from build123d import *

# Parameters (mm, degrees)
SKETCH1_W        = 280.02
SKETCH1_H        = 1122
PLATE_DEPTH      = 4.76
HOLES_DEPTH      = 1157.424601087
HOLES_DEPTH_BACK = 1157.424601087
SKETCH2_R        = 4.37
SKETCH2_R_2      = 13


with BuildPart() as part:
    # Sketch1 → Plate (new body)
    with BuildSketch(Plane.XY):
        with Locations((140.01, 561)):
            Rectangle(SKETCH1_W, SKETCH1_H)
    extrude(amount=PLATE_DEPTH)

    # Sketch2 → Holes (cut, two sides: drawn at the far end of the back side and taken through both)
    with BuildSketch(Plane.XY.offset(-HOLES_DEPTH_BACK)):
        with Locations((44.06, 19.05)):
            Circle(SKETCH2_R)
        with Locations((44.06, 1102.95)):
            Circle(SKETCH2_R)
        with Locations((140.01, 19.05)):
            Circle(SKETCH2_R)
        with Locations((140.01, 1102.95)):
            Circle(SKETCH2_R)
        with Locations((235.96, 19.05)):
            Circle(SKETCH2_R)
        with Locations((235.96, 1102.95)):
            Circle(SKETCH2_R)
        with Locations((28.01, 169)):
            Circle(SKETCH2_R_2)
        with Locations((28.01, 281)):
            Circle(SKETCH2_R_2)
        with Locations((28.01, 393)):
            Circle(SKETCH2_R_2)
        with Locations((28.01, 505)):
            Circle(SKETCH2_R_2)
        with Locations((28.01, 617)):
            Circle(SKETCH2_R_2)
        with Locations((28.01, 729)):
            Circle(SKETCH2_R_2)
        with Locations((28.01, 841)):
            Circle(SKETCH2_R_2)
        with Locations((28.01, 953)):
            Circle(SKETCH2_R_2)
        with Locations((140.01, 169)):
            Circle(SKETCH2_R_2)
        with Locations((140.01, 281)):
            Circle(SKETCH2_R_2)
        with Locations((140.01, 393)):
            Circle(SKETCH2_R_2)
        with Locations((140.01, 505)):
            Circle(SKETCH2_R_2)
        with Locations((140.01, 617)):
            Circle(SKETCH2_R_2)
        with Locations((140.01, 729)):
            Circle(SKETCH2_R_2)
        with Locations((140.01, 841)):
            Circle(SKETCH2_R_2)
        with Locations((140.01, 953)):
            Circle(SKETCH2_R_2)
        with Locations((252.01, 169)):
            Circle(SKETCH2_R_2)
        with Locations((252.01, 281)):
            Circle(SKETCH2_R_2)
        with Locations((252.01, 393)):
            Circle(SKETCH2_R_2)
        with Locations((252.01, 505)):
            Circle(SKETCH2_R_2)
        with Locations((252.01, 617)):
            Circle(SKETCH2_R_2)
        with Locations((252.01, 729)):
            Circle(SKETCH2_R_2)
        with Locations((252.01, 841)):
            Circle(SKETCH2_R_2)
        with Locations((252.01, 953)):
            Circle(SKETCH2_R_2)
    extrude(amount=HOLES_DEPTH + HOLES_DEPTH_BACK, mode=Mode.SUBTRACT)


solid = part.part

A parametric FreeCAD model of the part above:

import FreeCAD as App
import Part
import Sketcher

V = App.Vector
Q = App.Units.Quantity


def add_polygon(sketch, points):
    """Adds a closed chain of lines whose ends are joined by coincident constraints."""
    first, n = sketch.GeometryCount, len(points)
    for a, b in zip(points, points[1:] + points[:1]):
        sketch.addGeometry(Part.LineSegment(App.Vector(*a, 0), App.Vector(*b, 0)), False)
    for i in range(n):
        sketch.addConstraint(Sketcher.Constraint("Coincident", first + i, 2, first + (i + 1) % n, 1))

doc = App.newDocument("Part")
body = doc.addObject("PartDesign::Body", "Body")

# Sketch on XY plane
sketch1 = body.newObject("Sketcher::SketchObject", "Sketch")
sketch1.AttachmentSupport = (doc.getObject("XY_Plane"), [""])
sketch1.MapMode = "FlatFace"
add_polygon(sketch1, [(0, 1122), (0, 0), (280, 0), (280, 1122)])  # lines 0-3
sketch1.addConstraint(Sketcher.Constraint("Vertical", 0))
sketch1.addConstraint(Sketcher.Constraint("Horizontal", 1))
sketch1.addConstraint(Sketcher.Constraint("Vertical", 2))
sketch1.addConstraint(Sketcher.Constraint("Horizontal", 3))
sketch1.addConstraint(Sketcher.Constraint("Coincident", 0, 2, -1, 1))
sketch1.addConstraint(Sketcher.Constraint("DistanceY", 0, 2, 0, 1, Q("1122 mm")))
sketch1.addConstraint(Sketcher.Constraint("DistanceX", 1, 1, 1, 2, Q("280.02 mm")))
pad1 = body.newObject("PartDesign::Pad", "Pad")
pad1.Profile = sketch1
pad1.Length = 4.76

# Sketch on XY plane
sketch2 = body.newObject("Sketcher::SketchObject", "Sketch001")
sketch2.AttachmentSupport = (doc.getObject("XY_Plane"), [""])
sketch2.MapMode = "FlatFace"
sketch2.addGeometry(Part.Circle(V(44.1, 19.1, 0), V(0, 0, 1), 4.4), False)
sketch2.addGeometry(Part.Circle(V(44.1, 1103, 0), V(0, 0, 1), 4.4), False)
sketch2.addGeometry(Part.Circle(V(140, 19.1, 0), V(0, 0, 1), 4.4), False)
sketch2.addGeometry(Part.Circle(V(140, 1103, 0), V(0, 0, 1), 4.4), False)
sketch2.addGeometry(Part.Circle(V(236, 19.1, 0), V(0, 0, 1), 4.4), False)
sketch2.addGeometry(Part.Circle(V(236, 1103, 0), V(0, 0, 1), 4.4), False)
sketch2.addGeometry(Part.Circle(V(28, 169, 0), V(0, 0, 1), 13), False)
sketch2.addGeometry(Part.Circle(V(28, 281, 0), V(0, 0, 1), 13), False)
sketch2.addGeometry(Part.Circle(V(28, 393, 0), V(0, 0, 1), 13), False)
sketch2.addGeometry(Part.Circle(V(28, 505, 0), V(0, 0, 1), 13), False)
sketch2.addGeometry(Part.Circle(V(28, 617, 0), V(0, 0, 1), 13), False)
sketch2.addGeometry(Part.Circle(V(28, 729, 0), V(0, 0, 1), 13), False)
sketch2.addGeometry(Part.Circle(V(28, 841, 0), V(0, 0, 1), 13), False)
sketch2.addGeometry(Part.Circle(V(28, 953, 0), V(0, 0, 1), 13), False)
sketch2.addGeometry(Part.Circle(V(140, 169, 0), V(0, 0, 1), 13), False)
sketch2.addGeometry(Part.Circle(V(140, 281, 0), V(0, 0, 1), 13), False)
sketch2.addGeometry(Part.Circle(V(140, 393, 0), V(0, 0, 1), 13), False)
sketch2.addGeometry(Part.Circle(V(140, 505, 0), V(0, 0, 1), 13), False)
sketch2.addGeometry(Part.Circle(V(140, 617, 0), V(0, 0, 1), 13), False)
sketch2.addGeometry(Part.Circle(V(140, 729, 0), V(0, 0, 1), 13), False)
sketch2.addGeometry(Part.Circle(V(140, 841, 0), V(0, 0, 1), 13), False)
sketch2.addGeometry(Part.Circle(V(140, 953, 0), V(0, 0, 1), 13), False)
sketch2.addGeometry(Part.Circle(V(252, 169, 0), V(0, 0, 1), 13), False)
sketch2.addGeometry(Part.Circle(V(252, 281, 0), V(0, 0, 1), 13), False)
sketch2.addGeometry(Part.Circle(V(252, 393, 0), V(0, 0, 1), 13), False)
sketch2.addGeometry(Part.Circle(V(252, 505, 0), V(0, 0, 1), 13), False)
sketch2.addGeometry(Part.Circle(V(252, 617, 0), V(0, 0, 1), 13), False)
sketch2.addGeometry(Part.Circle(V(252, 729, 0), V(0, 0, 1), 13), False)
sketch2.addGeometry(Part.Circle(V(252, 841, 0), V(0, 0, 1), 13), False)
sketch2.addGeometry(Part.Circle(V(252, 953, 0), V(0, 0, 1), 13), False)
sketch2.addConstraint(Sketcher.Constraint("Equal", 0, 1))
sketch2.addConstraint(Sketcher.Constraint("Equal", 1, 2))
sketch2.addConstraint(Sketcher.Constraint("Equal", 2, 3))
sketch2.addConstraint(Sketcher.Constraint("Equal", 3, 4))
sketch2.addConstraint(Sketcher.Constraint("Equal", 4, 5))
sketch2.addConstraint(Sketcher.Constraint("Equal", 6, 7))
sketch2.addConstraint(Sketcher.Constraint("Equal", 7, 8))
sketch2.addConstraint(Sketcher.Constraint("Equal", 8, 9))
sketch2.addConstraint(Sketcher.Constraint("Equal", 9, 10))
sketch2.addConstraint(Sketcher.Constraint("Equal", 10, 11))
sketch2.addConstraint(Sketcher.Constraint("Equal", 11, 12))
sketch2.addConstraint(Sketcher.Constraint("Equal", 12, 13))
sketch2.addConstraint(Sketcher.Constraint("Equal", 13, 14))
sketch2.addConstraint(Sketcher.Constraint("Equal", 14, 15))
sketch2.addConstraint(Sketcher.Constraint("Equal", 15, 16))
sketch2.addConstraint(Sketcher.Constraint("Equal", 16, 17))
sketch2.addConstraint(Sketcher.Constraint("Equal", 17, 18))
sketch2.addConstraint(Sketcher.Constraint("Equal", 18, 19))
sketch2.addConstraint(Sketcher.Constraint("Equal", 19, 20))
sketch2.addConstraint(Sketcher.Constraint("Equal", 20, 21))
sketch2.addConstraint(Sketcher.Constraint("Equal", 21, 22))
sketch2.addConstraint(Sketcher.Constraint("Equal", 22, 23))
sketch2.addConstraint(Sketcher.Constraint("Equal", 23, 24))
sketch2.addConstraint(Sketcher.Constraint("Equal", 24, 25))
sketch2.addConstraint(Sketcher.Constraint("Equal", 25, 26))
sketch2.addConstraint(Sketcher.Constraint("Equal", 26, 27))
sketch2.addConstraint(Sketcher.Constraint("Equal", 27, 28))
sketch2.addConstraint(Sketcher.Constraint("Equal", 28, 29))
sketch2.addConstraint(Sketcher.Constraint("Horizontal", 0, 3, 2, 3))
sketch2.addConstraint(Sketcher.Constraint("Horizontal", 1, 3, 3, 3))
sketch2.addConstraint(Sketcher.Constraint("Horizontal", 2, 3, 4, 3))
sketch2.addConstraint(Sketcher.Constraint("Horizontal", 3, 3, 5, 3))
sketch2.addConstraint(Sketcher.Constraint("Horizontal", 6, 3, 14, 3))
sketch2.addConstraint(Sketcher.Constraint("Horizontal", 7, 3, 15, 3))
sketch2.addConstraint(Sketcher.Constraint("Horizontal", 8, 3, 16, 3))
sketch2.addConstraint(Sketcher.Constraint("Horizontal", 9, 3, 17, 3))
sketch2.addConstraint(Sketcher.Constraint("Horizontal", 10, 3, 18, 3))
sketch2.addConstraint(Sketcher.Constraint("Horizontal", 11, 3, 19, 3))
sketch2.addConstraint(Sketcher.Constraint("Horizontal", 12, 3, 20, 3))
sketch2.addConstraint(Sketcher.Constraint("Horizontal", 13, 3, 21, 3))
sketch2.addConstraint(Sketcher.Constraint("Horizontal", 14, 3, 22, 3))
sketch2.addConstraint(Sketcher.Constraint("Horizontal", 15, 3, 23, 3))
sketch2.addConstraint(Sketcher.Constraint("Horizontal", 16, 3, 24, 3))
sketch2.addConstraint(Sketcher.Constraint("Horizontal", 17, 3, 25, 3))
sketch2.addConstraint(Sketcher.Constraint("Horizontal", 18, 3, 26, 3))
sketch2.addConstraint(Sketcher.Constraint("Horizontal", 19, 3, 27, 3))
sketch2.addConstraint(Sketcher.Constraint("Horizontal", 20, 3, 28, 3))
sketch2.addConstraint(Sketcher.Constraint("Horizontal", 21, 3, 29, 3))
sketch2.addConstraint(Sketcher.Constraint("Vertical", 0, 3, 1, 3))
sketch2.addConstraint(Sketcher.Constraint("Vertical", 2, 3, 3, 3))
sketch2.addConstraint(Sketcher.Constraint("Vertical", 4, 3, 5, 3))
sketch2.addConstraint(Sketcher.Constraint("Vertical", 6, 3, 7, 3))
sketch2.addConstraint(Sketcher.Constraint("Vertical", 7, 3, 8, 3))
sketch2.addConstraint(Sketcher.Constraint("Vertical", 8, 3, 9, 3))
sketch2.addConstraint(Sketcher.Constraint("Vertical", 9, 3, 10, 3))
sketch2.addConstraint(Sketcher.Constraint("Vertical", 10, 3, 11, 3))
sketch2.addConstraint(Sketcher.Constraint("Vertical", 11, 3, 12, 3))
sketch2.addConstraint(Sketcher.Constraint("Vertical", 12, 3, 13, 3))
sketch2.addConstraint(Sketcher.Constraint("Vertical", 3, 3, 14, 3))
sketch2.addConstraint(Sketcher.Constraint("Vertical", 14, 3, 15, 3))
sketch2.addConstraint(Sketcher.Constraint("Vertical", 15, 3, 16, 3))
sketch2.addConstraint(Sketcher.Constraint("Vertical", 16, 3, 17, 3))
sketch2.addConstraint(Sketcher.Constraint("Vertical", 17, 3, 18, 3))
sketch2.addConstraint(Sketcher.Constraint("Vertical", 18, 3, 19, 3))
sketch2.addConstraint(Sketcher.Constraint("Vertical", 19, 3, 20, 3))
sketch2.addConstraint(Sketcher.Constraint("Vertical", 20, 3, 21, 3))
sketch2.addConstraint(Sketcher.Constraint("Vertical", 22, 3, 23, 3))
sketch2.addConstraint(Sketcher.Constraint("Vertical", 23, 3, 24, 3))
sketch2.addConstraint(Sketcher.Constraint("Vertical", 24, 3, 25, 3))
sketch2.addConstraint(Sketcher.Constraint("Vertical", 25, 3, 26, 3))
sketch2.addConstraint(Sketcher.Constraint("Vertical", 26, 3, 27, 3))
sketch2.addConstraint(Sketcher.Constraint("Vertical", 27, 3, 28, 3))
sketch2.addConstraint(Sketcher.Constraint("Vertical", 28, 3, 29, 3))
sketch2.addConstraint(Sketcher.Constraint("Diameter", 6, Q("26 mm")))
sketch2.addConstraint(Sketcher.Constraint("Diameter", 0, Q("8.74 mm")))
sketch2.addConstraint(Sketcher.Constraint("DistanceY", -1, 1, 6, 3, Q("169 mm")))
sketch2.addConstraint(Sketcher.Constraint("DistanceY", -1, 1, 7, 3, Q("281 mm")))
sketch2.addConstraint(Sketcher.Constraint("DistanceY", -1, 1, 8, 3, Q("393 mm")))
sketch2.addConstraint(Sketcher.Constraint("DistanceY", -1, 1, 9, 3, Q("505 mm")))
sketch2.addConstraint(Sketcher.Constraint("DistanceY", -1, 1, 10, 3, Q("617 mm")))
sketch2.addConstraint(Sketcher.Constraint("DistanceY", -1, 1, 11, 3, Q("729 mm")))
sketch2.addConstraint(Sketcher.Constraint("DistanceY", -1, 1, 12, 3, Q("841 mm")))
sketch2.addConstraint(Sketcher.Constraint("DistanceY", -1, 1, 13, 3, Q("953 mm")))
sketch2.addConstraint(Sketcher.Constraint("DistanceX", 6, 3, 2, 3, Q("112 mm")))
sketch2.addConstraint(Sketcher.Constraint("DistanceX", 14, 3, 22, 3, Q("112 mm")))
sketch2.addConstraint(Sketcher.Constraint("DistanceY", 0, 3, 1, 3, Q("1083.9 mm")))
sketch2.addConstraint(Sketcher.Constraint("DistanceX", 0, 3, 4, 3, Q("191.9 mm")))
sketch2.addConstraint(Sketcher.Constraint("DistanceX", -1, 1, 0, 3, Q("44.06 mm")))
sketch2.addConstraint(Sketcher.Constraint("DistanceY", -1, 1, 0, 3, Q("19.05 mm")))
sketch2.addConstraint(Sketcher.Constraint("DistanceX", -1, 1, 2, 3, Q("140.01 mm")))
pocket1 = body.newObject("PartDesign::Pocket", "Pocket")
pocket1.Profile = sketch2
pocket1.Type = "ThroughAll"
pocket1.Midplane = True

doc.recompute()
